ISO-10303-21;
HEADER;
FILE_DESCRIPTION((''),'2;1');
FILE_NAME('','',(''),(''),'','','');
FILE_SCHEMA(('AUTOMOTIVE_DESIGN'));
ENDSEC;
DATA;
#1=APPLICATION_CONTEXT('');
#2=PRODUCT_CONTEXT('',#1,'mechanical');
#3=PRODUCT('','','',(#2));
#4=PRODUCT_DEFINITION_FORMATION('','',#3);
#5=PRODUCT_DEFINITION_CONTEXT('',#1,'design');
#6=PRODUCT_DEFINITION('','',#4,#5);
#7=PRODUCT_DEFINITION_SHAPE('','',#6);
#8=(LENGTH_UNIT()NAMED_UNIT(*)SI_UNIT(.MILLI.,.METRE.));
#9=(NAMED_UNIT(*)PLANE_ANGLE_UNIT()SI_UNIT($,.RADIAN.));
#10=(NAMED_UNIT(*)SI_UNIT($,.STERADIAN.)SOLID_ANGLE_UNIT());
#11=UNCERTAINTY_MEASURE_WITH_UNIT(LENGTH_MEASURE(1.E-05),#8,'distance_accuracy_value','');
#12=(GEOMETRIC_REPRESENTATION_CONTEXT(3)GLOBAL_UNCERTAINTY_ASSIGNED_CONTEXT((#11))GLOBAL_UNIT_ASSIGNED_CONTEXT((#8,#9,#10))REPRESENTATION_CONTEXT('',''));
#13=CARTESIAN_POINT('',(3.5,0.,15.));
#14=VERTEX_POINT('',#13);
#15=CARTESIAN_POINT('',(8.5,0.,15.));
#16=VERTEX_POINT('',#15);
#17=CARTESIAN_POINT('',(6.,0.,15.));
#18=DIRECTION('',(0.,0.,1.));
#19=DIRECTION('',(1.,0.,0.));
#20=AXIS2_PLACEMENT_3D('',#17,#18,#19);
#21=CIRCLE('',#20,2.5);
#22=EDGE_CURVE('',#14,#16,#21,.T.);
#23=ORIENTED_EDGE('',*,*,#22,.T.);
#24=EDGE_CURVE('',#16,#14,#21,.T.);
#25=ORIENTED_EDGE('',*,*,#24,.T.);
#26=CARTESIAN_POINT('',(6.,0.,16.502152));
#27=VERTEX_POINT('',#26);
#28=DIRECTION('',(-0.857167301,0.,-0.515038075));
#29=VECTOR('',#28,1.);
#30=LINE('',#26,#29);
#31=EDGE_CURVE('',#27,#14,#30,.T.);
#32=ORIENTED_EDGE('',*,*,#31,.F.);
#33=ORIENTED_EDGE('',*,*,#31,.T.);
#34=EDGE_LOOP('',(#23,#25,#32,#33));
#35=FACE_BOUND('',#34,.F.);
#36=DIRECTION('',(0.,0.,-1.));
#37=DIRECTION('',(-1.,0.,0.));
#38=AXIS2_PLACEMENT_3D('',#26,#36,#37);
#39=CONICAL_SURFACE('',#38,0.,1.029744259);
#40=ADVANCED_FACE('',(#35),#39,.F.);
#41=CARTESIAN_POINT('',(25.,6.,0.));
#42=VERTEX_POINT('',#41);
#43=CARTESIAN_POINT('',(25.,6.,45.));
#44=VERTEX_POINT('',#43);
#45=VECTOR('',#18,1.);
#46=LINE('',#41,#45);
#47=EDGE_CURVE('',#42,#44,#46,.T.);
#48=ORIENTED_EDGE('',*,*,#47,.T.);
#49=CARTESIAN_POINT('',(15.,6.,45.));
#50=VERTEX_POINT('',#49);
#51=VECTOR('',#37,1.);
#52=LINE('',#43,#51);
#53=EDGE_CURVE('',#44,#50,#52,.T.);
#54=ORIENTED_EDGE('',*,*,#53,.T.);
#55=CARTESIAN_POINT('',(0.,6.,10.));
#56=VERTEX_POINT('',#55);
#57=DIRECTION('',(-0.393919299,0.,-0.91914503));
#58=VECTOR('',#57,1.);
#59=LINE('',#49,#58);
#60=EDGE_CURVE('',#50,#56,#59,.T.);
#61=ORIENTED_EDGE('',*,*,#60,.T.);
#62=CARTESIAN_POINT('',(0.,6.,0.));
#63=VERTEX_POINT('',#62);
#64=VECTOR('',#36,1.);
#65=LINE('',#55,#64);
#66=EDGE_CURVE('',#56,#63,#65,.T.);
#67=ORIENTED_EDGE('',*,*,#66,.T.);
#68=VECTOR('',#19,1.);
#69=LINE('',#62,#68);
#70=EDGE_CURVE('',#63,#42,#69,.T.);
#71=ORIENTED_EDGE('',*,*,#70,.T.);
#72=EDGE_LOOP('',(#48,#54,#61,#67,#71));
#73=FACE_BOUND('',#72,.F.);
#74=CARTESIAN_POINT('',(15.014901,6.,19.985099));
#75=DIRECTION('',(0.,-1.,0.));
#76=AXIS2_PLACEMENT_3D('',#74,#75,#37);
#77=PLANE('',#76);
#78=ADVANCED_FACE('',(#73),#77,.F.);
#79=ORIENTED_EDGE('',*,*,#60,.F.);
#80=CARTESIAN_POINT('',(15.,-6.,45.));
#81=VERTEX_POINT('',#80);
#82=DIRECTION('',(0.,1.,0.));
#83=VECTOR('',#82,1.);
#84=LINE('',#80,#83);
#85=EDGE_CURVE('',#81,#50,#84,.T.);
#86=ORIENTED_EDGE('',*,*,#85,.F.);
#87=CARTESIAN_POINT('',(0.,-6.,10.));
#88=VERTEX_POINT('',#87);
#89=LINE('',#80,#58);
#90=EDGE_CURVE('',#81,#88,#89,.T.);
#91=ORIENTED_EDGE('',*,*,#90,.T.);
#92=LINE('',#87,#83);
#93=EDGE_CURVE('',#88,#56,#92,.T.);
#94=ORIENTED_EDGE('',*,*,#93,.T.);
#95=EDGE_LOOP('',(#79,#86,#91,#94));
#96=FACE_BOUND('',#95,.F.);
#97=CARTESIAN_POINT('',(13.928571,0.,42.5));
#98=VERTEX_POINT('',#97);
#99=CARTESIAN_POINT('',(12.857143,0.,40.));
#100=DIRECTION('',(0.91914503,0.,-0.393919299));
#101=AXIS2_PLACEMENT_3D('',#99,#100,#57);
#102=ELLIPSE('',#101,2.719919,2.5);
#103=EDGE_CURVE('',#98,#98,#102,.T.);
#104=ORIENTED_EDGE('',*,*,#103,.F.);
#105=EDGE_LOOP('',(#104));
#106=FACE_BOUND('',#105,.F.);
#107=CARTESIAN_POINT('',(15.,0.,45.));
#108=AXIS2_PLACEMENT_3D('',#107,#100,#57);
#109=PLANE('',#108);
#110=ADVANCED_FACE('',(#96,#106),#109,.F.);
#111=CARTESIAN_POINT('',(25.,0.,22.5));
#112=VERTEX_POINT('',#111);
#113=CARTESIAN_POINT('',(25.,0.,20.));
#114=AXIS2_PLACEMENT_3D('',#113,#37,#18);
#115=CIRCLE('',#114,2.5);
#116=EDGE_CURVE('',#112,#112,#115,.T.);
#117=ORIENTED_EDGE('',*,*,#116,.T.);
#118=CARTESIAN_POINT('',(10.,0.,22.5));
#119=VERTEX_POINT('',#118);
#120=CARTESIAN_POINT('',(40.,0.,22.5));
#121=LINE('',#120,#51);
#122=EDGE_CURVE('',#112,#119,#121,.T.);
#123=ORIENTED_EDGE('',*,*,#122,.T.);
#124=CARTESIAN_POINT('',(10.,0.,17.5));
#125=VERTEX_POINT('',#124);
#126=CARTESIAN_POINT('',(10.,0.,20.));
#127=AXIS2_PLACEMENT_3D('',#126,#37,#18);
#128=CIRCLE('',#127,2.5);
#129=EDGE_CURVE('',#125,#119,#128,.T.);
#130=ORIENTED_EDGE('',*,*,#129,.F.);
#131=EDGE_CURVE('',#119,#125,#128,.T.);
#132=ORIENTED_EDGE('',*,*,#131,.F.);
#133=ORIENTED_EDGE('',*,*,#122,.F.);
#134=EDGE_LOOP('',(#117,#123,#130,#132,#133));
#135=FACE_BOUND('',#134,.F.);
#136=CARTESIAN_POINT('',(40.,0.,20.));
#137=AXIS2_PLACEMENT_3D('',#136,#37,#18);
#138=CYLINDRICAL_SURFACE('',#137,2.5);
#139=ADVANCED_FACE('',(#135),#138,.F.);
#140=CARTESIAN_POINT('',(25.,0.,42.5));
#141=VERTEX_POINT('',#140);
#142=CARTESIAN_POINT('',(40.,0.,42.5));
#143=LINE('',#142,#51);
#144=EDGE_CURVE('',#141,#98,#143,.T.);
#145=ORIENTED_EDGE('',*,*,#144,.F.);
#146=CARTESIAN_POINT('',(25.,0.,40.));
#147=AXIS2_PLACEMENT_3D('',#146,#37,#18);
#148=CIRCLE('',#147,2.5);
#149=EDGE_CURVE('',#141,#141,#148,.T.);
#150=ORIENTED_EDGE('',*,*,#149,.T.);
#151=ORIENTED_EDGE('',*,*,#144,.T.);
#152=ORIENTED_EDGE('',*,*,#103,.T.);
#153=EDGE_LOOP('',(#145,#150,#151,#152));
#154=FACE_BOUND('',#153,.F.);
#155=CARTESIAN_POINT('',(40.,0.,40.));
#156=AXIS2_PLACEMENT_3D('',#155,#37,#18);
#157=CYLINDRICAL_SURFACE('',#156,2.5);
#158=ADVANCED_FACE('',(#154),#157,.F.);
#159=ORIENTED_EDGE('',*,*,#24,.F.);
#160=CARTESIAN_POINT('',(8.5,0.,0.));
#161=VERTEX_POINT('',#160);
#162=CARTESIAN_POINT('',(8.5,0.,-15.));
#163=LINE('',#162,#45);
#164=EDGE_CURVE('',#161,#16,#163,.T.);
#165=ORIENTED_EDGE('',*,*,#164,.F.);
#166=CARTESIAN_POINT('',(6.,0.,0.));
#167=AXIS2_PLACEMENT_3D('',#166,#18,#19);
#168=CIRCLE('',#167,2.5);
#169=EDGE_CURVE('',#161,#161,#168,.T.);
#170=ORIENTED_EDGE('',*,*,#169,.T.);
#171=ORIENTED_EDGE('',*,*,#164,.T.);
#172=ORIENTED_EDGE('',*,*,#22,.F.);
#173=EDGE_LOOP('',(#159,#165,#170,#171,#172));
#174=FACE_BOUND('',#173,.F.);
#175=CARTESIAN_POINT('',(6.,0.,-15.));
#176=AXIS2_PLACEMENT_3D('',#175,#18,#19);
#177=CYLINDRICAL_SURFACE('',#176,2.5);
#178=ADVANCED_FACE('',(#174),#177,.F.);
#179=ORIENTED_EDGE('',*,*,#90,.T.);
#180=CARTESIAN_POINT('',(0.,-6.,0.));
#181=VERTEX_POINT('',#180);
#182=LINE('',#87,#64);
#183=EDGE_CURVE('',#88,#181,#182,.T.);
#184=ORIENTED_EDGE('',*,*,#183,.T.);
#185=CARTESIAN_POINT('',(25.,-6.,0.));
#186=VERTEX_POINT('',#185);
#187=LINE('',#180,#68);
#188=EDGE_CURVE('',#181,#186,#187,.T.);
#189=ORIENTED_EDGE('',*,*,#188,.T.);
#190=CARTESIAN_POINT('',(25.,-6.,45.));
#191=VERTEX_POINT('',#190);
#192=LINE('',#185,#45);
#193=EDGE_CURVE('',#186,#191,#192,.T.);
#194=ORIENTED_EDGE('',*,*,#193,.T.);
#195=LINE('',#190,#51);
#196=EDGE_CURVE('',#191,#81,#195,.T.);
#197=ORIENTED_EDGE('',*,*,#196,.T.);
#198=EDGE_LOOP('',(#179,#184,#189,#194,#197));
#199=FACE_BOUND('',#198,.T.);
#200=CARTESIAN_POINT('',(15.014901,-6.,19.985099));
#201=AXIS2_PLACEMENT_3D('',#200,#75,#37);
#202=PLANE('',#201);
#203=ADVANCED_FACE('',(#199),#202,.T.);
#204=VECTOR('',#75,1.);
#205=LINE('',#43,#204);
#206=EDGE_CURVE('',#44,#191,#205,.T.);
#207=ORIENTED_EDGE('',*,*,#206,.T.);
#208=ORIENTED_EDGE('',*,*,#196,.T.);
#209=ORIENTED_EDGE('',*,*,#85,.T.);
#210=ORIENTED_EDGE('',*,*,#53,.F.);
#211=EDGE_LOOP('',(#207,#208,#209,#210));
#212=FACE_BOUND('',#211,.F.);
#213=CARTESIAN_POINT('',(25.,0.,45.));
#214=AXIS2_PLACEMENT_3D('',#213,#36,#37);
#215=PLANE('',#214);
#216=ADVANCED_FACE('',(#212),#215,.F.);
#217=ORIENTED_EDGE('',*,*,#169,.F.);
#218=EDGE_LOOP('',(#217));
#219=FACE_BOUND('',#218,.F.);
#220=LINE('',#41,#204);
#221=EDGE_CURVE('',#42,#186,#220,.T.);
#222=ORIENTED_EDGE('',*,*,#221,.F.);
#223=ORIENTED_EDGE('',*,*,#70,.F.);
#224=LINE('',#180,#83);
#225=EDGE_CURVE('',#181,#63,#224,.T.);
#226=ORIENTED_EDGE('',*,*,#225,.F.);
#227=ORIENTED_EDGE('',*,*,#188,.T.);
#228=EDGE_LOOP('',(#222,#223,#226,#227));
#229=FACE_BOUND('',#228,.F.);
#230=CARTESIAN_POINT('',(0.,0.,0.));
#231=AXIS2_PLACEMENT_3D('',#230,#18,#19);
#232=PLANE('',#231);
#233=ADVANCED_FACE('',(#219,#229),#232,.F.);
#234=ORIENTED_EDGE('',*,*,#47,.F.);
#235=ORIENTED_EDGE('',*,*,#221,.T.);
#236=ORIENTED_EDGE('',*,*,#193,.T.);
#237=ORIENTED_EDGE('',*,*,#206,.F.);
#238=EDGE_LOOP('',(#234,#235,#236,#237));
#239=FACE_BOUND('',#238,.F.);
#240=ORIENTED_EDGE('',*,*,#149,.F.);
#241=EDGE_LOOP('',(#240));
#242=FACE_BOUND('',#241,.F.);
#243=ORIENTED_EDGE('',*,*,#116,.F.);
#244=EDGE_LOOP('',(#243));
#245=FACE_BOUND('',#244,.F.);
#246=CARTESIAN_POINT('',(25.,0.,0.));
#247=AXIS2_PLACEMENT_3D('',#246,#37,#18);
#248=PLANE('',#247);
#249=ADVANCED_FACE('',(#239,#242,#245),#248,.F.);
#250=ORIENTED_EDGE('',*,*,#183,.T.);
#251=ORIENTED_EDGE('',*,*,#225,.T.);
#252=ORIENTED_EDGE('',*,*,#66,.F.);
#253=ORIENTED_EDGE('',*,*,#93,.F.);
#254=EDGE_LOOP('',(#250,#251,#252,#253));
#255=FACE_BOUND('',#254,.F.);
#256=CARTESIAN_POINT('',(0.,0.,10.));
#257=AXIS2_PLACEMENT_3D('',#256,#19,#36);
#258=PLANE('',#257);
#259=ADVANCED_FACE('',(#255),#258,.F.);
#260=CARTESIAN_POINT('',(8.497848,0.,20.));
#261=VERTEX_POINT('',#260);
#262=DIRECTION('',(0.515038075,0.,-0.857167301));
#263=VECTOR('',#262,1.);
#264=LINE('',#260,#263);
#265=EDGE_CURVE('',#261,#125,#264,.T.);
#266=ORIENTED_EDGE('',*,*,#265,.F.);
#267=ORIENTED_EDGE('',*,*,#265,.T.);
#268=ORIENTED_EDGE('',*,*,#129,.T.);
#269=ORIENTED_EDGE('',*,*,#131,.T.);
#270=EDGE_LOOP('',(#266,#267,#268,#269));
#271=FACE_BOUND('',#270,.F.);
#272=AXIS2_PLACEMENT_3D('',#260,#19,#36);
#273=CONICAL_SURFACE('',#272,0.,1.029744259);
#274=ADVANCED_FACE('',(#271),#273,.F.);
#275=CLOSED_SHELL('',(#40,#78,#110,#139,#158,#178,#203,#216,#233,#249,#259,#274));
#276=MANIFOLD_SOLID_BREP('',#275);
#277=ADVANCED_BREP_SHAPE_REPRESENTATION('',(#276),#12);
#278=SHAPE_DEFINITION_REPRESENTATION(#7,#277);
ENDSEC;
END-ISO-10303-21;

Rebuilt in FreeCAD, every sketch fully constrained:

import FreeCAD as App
import Part
import Sketcher


def add_polygon(sketch, points):
    """Adds a closed chain of lines whose ends are joined by coincident constraints."""
    first, n = sketch.GeometryCount, len(points)
    for a, b in zip(points, points[1:] + points[:1]):
        sketch.addGeometry(Part.LineSegment(App.Vector(*a, 0), App.Vector(*b, 0)), False)
    for i in range(n):
        sketch.addConstraint(Sketcher.Constraint("Coincident", first + i, 2, first + (i + 1) % n, 1))

doc = App.newDocument("Part")
body = doc.addObject("PartDesign::Body", "Body")

# Sketch on XZ plane
sketch1 = doc.addObject("Sketcher::SketchObject", "Sketch")
body.addObject(sketch1)
sketch1.AttachmentSupport = (doc.XZ_Plane, [""])
sketch1.MapMode = "FlatFace"
add_polygon(sketch1, [(25, 0), (0, 0), (0, 10), (15, 45), (25, 45)])  # lines 0-4
sketch1.addConstraint([
    Sketcher.Constraint("Horizontal", 0),
    Sketcher.Constraint("Vertical", 1),
    Sketcher.Constraint("Horizontal", 3),
    Sketcher.Constraint("Vertical", 4),
    Sketcher.Constraint("Coincident", 0, 2, -1, 1),
    Sketcher.Constraint("Equal", 3, 1),
    Sketcher.Constraint("DistanceX", 0, 2, 0, 1, 25.0),
    Sketcher.Constraint("DistanceX", 3, 1, 3, 2, 10.0),
    Sketcher.Constraint("DistanceY", 4, 2, 4, 1, 45.0),
])
pad1 = doc.addObject("PartDesign::Pad", "Pad")
body.addObject(pad1)
pad1.Profile = sketch1
pad1.Length = 12
pad1.Midplane = True

# Sketch on YZ plane
sketch2 = doc.addObject("Sketcher::SketchObject", "Sketch001")
body.addObject(sketch2)
sketch2.AttachmentSupport = (doc.YZ_Plane, [""])
sketch2.MapMode = "FlatFace"
sketch2.AttachmentOffset = App.Placement(App.Vector(0, 0, 25), App.Rotation())
sketch2.addGeometry([
    Part.Circle(App.Vector(0, 20, 0), App.Vector(0, 0, 1), 2.5),
    Part.Circle(App.Vector(0, 40, 0), App.Vector(0, 0, 1), 2.5),
], False)
sketch2.addConstraint([
    Sketcher.Constraint("Equal", 0, 1),
    Sketcher.Constraint("PointOnObject", 0, 3, -2),
    Sketcher.Constraint("PointOnObject", 1, 3, -2),
    Sketcher.Constraint("Diameter", 0, 5.0),
    Sketcher.Constraint("DistanceY", -1, 1, 0, 3, 20.0),
    Sketcher.Constraint("DistanceY", -1, 1, 1, 3, 40.0),
])
doc.recompute()
hole = doc.addObject("PartDesign::Hole", "Hole")
body.addObject(hole)
hole.Profile = sketch2
hole.ThreadType = "None"
hole.Diameter = 5
hole.DepthType = "Dimension"
hole.Depth = 15
hole.DrillPoint = "Angled"
hole.DrillPointAngle = 118

# Sketch on XY plane
sketch3 = doc.addObject("Sketcher::SketchObject", "Sketch002")
body.addObject(sketch3)
sketch3.AttachmentSupport = (doc.XY_Plane, [""])
sketch3.MapMode = "FlatFace"
sketch3.addGeometry(Part.Circle(App.Vector(6, 0, 0), App.Vector(0, 0, 1), 2.5), False)
sketch3.addConstraint([
    Sketcher.Constraint("PointOnObject", 0, 3, -1),
    Sketcher.Constraint("Diameter", 0, 5.0),
    Sketcher.Constraint("DistanceX", -1, 1, 0, 3, 6.0),
])
doc.recompute()
hole2 = doc.addObject("PartDesign::Hole", "Hole001")
body.addObject(hole2)
hole2.Profile = sketch3
hole2.ThreadType = "None"
hole2.Diameter = 5
hole2.DepthType = "Dimension"
hole2.Depth = 15
hole2.DrillPoint = "Angled"
hole2.DrillPointAngle = 118
hole2.Reversed = True

doc.recompute()
